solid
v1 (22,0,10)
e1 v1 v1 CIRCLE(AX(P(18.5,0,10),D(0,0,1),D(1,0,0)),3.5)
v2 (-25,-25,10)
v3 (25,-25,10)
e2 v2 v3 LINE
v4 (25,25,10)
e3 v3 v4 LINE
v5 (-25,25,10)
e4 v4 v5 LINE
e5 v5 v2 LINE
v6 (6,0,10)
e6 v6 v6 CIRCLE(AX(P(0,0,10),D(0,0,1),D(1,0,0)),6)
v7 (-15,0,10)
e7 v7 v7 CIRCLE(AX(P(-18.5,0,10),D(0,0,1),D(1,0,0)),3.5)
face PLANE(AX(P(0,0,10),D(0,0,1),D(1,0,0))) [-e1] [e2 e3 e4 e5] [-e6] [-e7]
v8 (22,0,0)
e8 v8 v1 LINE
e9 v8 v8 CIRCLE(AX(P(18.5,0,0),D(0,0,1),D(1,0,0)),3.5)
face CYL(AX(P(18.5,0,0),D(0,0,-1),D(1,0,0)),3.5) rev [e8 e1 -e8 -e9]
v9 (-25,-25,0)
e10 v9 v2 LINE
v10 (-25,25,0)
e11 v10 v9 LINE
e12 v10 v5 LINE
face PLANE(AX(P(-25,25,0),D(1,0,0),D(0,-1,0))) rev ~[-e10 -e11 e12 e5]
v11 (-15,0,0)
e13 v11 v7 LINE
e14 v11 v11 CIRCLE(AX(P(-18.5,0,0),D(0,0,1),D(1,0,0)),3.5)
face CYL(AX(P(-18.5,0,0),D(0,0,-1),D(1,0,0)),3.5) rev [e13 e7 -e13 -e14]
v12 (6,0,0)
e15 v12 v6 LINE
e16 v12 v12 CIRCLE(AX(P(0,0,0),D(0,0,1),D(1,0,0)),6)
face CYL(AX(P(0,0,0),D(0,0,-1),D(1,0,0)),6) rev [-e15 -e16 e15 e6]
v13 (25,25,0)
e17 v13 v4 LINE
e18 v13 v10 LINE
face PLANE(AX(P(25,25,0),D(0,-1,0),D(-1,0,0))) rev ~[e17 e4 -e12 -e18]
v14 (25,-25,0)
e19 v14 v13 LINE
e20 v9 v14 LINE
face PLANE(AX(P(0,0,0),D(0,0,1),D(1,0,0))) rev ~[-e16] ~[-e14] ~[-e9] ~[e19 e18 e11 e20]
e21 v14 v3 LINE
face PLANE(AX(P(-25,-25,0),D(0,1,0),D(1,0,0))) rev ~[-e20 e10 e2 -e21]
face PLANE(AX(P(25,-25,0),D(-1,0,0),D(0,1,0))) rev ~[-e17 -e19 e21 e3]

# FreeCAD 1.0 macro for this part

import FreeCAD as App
import Part
import Sketcher
Q = App.Units.Quantity


def add_polygon(sketch, points):
    """Adds a closed chain of lines whose ends are joined by coincident constraints."""
    first, n = sketch.GeometryCount, len(points)
    for a, b in zip(points, points[1:] + points[:1]):
        sketch.addGeometry(Part.LineSegment(App.Vector(*a, 0), App.Vector(*b, 0)), False)
    for i in range(n):
        sketch.addConstraint(Sketcher.Constraint("Coincident", first + i, 2, first + (i + 1) % n, 1))

doc = App.newDocument("Part")
body = doc.addObject("PartDesign::Body", "Body")

# Sketch on XY plane
sketch1 = doc.addObject("Sketcher::SketchObject", "Sketch")
body.addObject(sketch1)
sketch1.AttachmentSupport = (doc.XY_Plane, [""])
sketch1.MapMode = "FlatFace"
add_polygon(sketch1, [(-25, 25), (-25, -25), (25, -25), (25, 25)])  # lines 0-3
sketch1.addGeometry(Part.Circle(App.Vector(-18.5, 0, 0), App.Vector(0, 0, 1), 3.5), False)  # 4
sketch1.addGeometry(Part.Circle(App.Vector(0, 0, 0), App.Vector(0, 0, 1), 6), False)  # 5
sketch1.addGeometry(Part.Circle(App.Vector(18.5, 0, 0), App.Vector(0, 0, 1), 3.5), False)  # 6
sketch1.addConstraint([
    Sketcher.Constraint("Vertical", 0),
    Sketcher.Constraint("Horizontal", 1),
    Sketcher.Constraint("Vertical", 2),
    Sketcher.Constraint("Horizontal", 3),
    Sketcher.Constraint("Coincident", 5, 3, -1, 1),
    Sketcher.Constraint("Equal", 4, 6),
    Sketcher.Constraint("Symmetric", 4, 3, 6, 3, -1, 1),
    Sketcher.Constraint("Symmetric", 0, 2, 2, 2, -1, 1),
    Sketcher.Constraint("PointOnObject", 4, 3, -1),
    Sketcher.Constraint("Equal", 3, 0),
    Sketcher.Constraint("Diameter", 4, Q("7 mm")),
    Sketcher.Constraint("Diameter", 5, Q("12 mm")),
    Sketcher.Constraint("DistanceX", 1, 1, 1, 2, Q("50 mm")),
    Sketcher.Constraint("DistanceX", 4, 3, -1, 1, Q("18.5 mm")),
])
pad1 = doc.addObject("PartDesign::Pad", "Pad")
body.addObject(pad1)
pad1.Profile = sketch1
pad1.Length = 10

doc.recompute()
